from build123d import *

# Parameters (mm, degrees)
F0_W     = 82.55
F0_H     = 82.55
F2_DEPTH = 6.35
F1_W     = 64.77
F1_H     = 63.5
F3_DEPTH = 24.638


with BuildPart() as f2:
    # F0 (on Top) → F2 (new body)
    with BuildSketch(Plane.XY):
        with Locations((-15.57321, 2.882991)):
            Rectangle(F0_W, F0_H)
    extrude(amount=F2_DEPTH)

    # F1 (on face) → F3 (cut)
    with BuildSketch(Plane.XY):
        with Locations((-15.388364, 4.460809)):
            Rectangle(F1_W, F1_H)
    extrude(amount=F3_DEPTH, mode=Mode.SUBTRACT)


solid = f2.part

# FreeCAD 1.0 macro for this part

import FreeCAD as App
import Part
import Sketcher
Q = App.Units.Quantity


def add_polygon(sketch, points):
    """Adds a closed chain of lines whose ends are joined by coincident constraints."""
    first, n = sketch.GeometryCount, len(points)
    for a, b in zip(points, points[1:] + points[:1]):
        sketch.addGeometry(Part.LineSegment(App.Vector(*a, 0), App.Vector(*b, 0)), False)
    for i in range(n):
        sketch.addConstraint(Sketcher.Constraint("Coincident", first + i, 2, first + (i + 1) % n, 1))

doc = App.newDocument("Part")
body = doc.addObject("PartDesign::Body", "Body")

# Sketch on XY plane
sketch1 = doc.addObject("Sketcher::SketchObject", "Sketch")
body.addObject(sketch1)
sketch1.AttachmentSupport = (doc.XY_Plane, [""])
sketch1.MapMode = "FlatFace"
add_polygon(sketch1, [(-57, 44), (-57, -38), (26, -38), (26, 44)])  # lines 0-3
sketch1.addConstraint([
    Sketcher.Constraint("Vertical", 0),
    Sketcher.Constraint("Horizontal", 1),
    Sketcher.Constraint("Vertical", 2),
    Sketcher.Constraint("Horizontal", 3),
    Sketcher.Constraint("Equal", 3, 0),
    Sketcher.Constraint("DistanceX", 1, 1, 1, 2, Q("3.25 in")),
    Sketcher.Constraint("DistanceX", 0, 2, -1, 1, Q("56.84821 mm")),
    Sketcher.Constraint("DistanceY", 0, 2, -1, 1, Q("38.392009 mm")),
])
pad1 = doc.addObject("PartDesign::Pad", "Pad")
body.addObject(pad1)
pad1.Profile = sketch1
pad1.Length = Q("0.25 in")

# Sketch on XY plane
sketch2 = doc.addObject("Sketcher::SketchObject", "Sketch001")
body.addObject(sketch2)
sketch2.AttachmentSupport = (doc.XY_Plane, [""])
sketch2.MapMode = "FlatFace"
add_polygon(sketch2, [(-48, 36), (-48, -27), (17, -27), (17, 36)])  # lines 0-3
sketch2.addConstraint([
    Sketcher.Constraint("Vertical", 0),
    Sketcher.Constraint("Horizontal", 1),
    Sketcher.Constraint("Vertical", 2),
    Sketcher.Constraint("Horizontal", 3),
    Sketcher.Constraint("DistanceY", 0, 2, 0, 1, Q("2.5 in")),
    Sketcher.Constraint("DistanceX", 1, 1, 1, 2, Q("2.55 in")),
    Sketcher.Constraint("DistanceY", 0, 2, -1, 1, Q("27.289191 mm")),
    Sketcher.Constraint("DistanceX", 0, 2, -1, 1, Q("47.773364 mm")),
])
pocket1 = doc.addObject("PartDesign::Pocket", "Pocket")
body.addObject(pocket1)
pocket1.Profile = sketch2
pocket1.Length = Q("0.97 in")
pocket1.Reversed = True

doc.recompute()
